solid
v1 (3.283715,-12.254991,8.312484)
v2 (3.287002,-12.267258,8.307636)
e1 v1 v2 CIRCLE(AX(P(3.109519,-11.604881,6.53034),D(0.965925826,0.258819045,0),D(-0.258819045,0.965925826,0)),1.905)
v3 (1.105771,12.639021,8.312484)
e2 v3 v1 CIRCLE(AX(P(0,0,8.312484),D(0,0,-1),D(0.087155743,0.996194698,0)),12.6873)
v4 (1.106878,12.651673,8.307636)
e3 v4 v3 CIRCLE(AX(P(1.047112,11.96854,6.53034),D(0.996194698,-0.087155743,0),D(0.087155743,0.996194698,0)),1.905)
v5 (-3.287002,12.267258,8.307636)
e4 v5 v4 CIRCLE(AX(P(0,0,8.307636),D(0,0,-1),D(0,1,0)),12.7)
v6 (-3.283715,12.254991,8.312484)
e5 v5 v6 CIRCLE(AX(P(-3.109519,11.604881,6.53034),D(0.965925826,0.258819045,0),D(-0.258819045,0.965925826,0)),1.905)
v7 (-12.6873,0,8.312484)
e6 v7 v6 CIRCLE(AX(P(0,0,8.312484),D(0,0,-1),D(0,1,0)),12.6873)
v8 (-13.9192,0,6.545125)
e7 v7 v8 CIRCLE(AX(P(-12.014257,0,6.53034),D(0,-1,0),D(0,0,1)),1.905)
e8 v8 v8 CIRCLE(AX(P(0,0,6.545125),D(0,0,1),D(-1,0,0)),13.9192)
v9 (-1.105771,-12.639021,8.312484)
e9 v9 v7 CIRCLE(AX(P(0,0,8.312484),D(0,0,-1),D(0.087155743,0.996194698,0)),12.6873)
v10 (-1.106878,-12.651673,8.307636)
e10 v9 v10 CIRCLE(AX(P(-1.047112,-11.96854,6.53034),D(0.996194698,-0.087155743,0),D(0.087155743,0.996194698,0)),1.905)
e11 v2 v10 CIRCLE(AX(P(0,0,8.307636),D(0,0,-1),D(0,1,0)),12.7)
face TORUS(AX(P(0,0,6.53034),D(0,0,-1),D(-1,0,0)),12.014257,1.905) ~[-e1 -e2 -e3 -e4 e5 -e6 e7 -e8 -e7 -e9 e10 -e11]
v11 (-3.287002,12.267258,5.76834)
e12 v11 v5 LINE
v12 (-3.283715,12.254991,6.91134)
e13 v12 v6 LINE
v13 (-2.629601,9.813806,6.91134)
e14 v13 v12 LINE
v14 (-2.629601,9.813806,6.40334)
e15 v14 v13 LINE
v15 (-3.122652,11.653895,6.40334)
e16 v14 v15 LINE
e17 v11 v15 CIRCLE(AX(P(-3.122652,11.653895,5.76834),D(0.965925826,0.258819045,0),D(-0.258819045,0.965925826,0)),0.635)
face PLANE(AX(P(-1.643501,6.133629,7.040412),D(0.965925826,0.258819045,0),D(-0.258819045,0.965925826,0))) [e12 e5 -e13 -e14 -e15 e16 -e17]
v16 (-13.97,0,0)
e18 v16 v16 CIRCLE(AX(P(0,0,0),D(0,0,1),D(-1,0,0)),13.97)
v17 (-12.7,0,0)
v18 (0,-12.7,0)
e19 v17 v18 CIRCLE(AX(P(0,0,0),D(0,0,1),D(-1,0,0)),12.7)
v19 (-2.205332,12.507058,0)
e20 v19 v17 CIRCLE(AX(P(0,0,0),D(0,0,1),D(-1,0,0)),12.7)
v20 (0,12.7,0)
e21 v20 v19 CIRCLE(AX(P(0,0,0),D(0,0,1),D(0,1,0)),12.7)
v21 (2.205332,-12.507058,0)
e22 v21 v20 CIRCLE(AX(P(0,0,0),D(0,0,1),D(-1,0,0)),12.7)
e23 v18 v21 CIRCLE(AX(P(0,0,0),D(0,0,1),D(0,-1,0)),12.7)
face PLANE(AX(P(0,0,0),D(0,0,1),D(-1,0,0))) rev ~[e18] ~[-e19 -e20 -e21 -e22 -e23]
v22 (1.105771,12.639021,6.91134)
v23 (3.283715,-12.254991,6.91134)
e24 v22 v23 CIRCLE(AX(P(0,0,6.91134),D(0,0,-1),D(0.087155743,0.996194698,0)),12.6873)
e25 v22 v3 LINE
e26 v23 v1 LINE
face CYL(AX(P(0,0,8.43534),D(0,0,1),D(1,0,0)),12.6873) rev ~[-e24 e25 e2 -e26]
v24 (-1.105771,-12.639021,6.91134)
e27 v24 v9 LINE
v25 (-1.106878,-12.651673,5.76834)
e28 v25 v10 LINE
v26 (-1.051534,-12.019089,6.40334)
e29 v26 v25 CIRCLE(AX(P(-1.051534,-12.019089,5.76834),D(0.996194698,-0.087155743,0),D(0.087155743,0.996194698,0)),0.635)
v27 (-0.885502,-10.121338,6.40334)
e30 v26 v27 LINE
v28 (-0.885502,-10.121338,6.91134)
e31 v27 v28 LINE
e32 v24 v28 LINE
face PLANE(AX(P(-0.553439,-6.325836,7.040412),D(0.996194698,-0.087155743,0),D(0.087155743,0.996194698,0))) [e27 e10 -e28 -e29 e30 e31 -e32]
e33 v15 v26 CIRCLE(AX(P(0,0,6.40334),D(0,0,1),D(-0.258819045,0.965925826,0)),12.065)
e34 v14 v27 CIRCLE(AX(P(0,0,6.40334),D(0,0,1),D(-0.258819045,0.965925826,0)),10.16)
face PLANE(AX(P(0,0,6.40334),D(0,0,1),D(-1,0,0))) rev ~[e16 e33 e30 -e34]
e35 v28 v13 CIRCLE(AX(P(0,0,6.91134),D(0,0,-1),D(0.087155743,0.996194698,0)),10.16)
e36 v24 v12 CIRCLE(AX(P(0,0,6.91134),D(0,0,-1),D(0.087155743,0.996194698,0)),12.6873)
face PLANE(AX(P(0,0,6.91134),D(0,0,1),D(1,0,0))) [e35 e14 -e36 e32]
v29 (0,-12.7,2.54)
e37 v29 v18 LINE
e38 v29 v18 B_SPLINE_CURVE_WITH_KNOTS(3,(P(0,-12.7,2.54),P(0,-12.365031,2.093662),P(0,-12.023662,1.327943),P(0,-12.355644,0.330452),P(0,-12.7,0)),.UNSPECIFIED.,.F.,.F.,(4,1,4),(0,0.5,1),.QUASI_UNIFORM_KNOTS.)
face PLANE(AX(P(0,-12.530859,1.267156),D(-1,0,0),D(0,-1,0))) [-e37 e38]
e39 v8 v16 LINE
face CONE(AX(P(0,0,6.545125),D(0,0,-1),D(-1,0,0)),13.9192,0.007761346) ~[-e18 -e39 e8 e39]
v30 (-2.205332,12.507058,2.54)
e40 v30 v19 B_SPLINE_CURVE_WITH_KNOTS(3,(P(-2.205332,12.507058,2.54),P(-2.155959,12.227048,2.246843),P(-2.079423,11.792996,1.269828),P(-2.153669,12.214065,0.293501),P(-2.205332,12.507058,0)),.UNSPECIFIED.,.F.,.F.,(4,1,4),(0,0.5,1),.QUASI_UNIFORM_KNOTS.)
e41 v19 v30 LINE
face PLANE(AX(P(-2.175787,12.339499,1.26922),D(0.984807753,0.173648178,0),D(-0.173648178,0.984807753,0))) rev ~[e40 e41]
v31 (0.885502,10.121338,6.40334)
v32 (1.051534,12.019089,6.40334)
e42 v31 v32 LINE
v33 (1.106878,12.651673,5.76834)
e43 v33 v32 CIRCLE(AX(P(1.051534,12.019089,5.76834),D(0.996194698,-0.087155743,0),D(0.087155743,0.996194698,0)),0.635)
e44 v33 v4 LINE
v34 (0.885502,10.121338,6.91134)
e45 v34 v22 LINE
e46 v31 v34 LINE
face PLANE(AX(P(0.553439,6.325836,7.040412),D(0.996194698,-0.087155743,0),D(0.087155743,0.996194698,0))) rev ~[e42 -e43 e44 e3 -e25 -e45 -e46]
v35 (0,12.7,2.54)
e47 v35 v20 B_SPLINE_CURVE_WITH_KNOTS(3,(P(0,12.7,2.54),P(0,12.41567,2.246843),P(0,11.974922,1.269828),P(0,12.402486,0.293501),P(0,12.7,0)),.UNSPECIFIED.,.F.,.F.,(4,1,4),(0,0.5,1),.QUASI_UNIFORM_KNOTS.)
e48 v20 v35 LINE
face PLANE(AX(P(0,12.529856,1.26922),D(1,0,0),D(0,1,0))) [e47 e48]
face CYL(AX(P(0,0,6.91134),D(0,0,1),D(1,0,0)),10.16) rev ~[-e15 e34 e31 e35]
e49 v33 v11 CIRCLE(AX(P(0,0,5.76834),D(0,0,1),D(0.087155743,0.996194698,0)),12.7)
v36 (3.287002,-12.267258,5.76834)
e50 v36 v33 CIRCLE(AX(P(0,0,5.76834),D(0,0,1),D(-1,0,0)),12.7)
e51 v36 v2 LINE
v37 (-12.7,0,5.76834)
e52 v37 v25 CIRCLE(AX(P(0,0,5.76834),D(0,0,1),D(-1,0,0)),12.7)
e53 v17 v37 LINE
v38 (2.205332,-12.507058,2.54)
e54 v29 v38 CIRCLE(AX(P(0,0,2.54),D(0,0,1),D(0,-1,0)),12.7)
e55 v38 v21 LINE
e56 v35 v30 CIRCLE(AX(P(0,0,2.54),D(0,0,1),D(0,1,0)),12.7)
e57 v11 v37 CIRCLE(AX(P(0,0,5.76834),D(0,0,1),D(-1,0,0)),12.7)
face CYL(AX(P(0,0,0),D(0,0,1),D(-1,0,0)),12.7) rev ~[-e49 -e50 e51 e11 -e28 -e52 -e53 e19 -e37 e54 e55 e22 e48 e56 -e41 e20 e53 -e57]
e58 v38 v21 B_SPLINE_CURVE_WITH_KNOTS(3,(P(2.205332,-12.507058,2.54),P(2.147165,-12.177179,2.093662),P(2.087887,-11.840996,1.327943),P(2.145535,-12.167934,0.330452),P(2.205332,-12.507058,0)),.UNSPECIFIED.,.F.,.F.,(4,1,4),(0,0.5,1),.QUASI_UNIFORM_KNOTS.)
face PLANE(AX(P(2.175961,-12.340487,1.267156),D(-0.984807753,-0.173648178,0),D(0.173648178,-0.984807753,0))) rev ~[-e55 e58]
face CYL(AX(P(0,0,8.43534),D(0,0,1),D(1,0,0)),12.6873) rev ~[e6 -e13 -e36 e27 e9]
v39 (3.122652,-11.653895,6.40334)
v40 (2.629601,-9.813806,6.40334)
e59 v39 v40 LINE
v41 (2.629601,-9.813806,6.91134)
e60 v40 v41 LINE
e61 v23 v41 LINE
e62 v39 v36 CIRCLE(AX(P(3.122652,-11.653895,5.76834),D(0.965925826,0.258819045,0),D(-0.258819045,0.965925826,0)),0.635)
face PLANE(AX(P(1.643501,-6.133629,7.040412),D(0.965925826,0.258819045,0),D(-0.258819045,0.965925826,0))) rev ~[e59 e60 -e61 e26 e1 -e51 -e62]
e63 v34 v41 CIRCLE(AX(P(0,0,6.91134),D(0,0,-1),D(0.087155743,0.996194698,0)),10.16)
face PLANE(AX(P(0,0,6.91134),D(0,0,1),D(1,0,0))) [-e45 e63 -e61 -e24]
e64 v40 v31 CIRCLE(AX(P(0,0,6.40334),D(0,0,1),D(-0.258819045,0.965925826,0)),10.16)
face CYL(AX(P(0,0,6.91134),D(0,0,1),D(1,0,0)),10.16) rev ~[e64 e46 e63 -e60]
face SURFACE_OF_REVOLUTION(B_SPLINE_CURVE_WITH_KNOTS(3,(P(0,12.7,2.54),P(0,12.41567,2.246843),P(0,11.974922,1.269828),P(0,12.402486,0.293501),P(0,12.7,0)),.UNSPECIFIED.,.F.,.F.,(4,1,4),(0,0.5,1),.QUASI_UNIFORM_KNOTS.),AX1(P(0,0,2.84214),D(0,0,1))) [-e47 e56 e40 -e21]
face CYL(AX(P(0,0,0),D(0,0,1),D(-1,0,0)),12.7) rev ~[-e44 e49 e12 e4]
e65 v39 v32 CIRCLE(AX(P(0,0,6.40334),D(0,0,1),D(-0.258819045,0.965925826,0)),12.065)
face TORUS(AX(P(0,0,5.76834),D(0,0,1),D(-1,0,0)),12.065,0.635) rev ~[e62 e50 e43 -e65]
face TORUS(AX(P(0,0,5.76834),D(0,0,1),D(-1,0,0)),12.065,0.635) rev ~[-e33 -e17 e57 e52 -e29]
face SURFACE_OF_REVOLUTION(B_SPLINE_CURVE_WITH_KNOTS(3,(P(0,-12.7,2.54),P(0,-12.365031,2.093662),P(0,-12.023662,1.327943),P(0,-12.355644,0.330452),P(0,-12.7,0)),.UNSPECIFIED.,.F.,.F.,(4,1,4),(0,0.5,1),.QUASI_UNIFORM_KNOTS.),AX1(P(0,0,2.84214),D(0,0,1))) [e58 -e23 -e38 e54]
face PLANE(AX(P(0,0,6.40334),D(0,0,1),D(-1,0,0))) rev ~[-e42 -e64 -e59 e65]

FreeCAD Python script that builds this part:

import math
import FreeCAD as App
import Part
import Sketcher
Q = App.Units.Quantity

doc = App.newDocument("Part")
body = doc.addObject("PartDesign::Body", "Body")

# Sketch on XZ plane
sketch1 = doc.addObject("Sketcher::SketchObject", "Sketch")
body.addObject(sketch1)
sketch1.AttachmentSupport = (doc.XZ_Plane, [""])
sketch1.MapMode = "FlatFace"
sketch1.addGeometry([
    Part.LineSegment(App.Vector(-14, 0, 0), App.Vector(-12.7, 0, 0)),  # 0
    Part.LineSegment(App.Vector(-12.7, 0, 0), App.Vector(-12.7, 5.8, 0)),  # 1
    Part.ArcOfCircle(Part.Circle(App.Vector(-12.1, 5.8, 0), App.Vector(0, 0, 1), 0.6), math.radians(90), math.radians(180)),  # 2
    Part.LineSegment(App.Vector(-12.1, 6.4, 0), App.Vector(0, 6.4, 0)),  # 3
    Part.LineSegment(App.Vector(0, 6.4, 0), App.Vector(0, 8.4, 0)),  # 4
    Part.LineSegment(App.Vector(0, 8.4, 0), App.Vector(-12, 8.4, 0)),  # 5
    Part.ArcOfCircle(Part.Circle(App.Vector(-12, 6.5, 0), App.Vector(0, 0, 1), 1.9), math.radians(90), math.radians(180)),  # 6
    Part.LineSegment(App.Vector(-13.9, 6.5, 0), App.Vector(-14, 0, 0)),  # 7
], False)
sketch1.addConstraint([
    Sketcher.Constraint("Coincident", 0, 2, 1, 1),
    Sketcher.Constraint("Tangent", 1, 2, 2, 2),
    Sketcher.Constraint("Tangent", 2, 1, 3, 1),
    Sketcher.Constraint("Coincident", 3, 2, 4, 1),
    Sketcher.Constraint("Coincident", 4, 2, 5, 1),
    Sketcher.Constraint("Tangent", 5, 2, 6, 1),
    Sketcher.Constraint("Tangent", 6, 2, 7, 1),
    Sketcher.Constraint("Coincident", 7, 2, 0, 1),
    Sketcher.Constraint("Horizontal", 0),
    Sketcher.Constraint("Vertical", 1),
    Sketcher.Constraint("Horizontal", 3),
    Sketcher.Constraint("Vertical", 4),
    Sketcher.Constraint("Horizontal", 5),
    Sketcher.Constraint("PointOnObject", 0, 2, -1),
    Sketcher.Constraint("PointOnObject", 3, 2, -2),
    Sketcher.Constraint("Radius", 2, Q("0.025 in")),
    Sketcher.Constraint("Radius", 6, Q("0.075 in")),
    Sketcher.Constraint("DistanceX", 0, 1, 0, 2, Q("0.05 in")),
    Sketcher.Constraint("DistanceY", 4, 1, 4, 2, Q("0.08 in")),
    Sketcher.Constraint("DistanceX", 0, 2, -1, 1, Q("0.5 in")),
    Sketcher.Constraint("DistanceY", 1, 1, 1, 2, Q("0.2271 in")),
    Sketcher.Constraint("DistanceX", 6, 2, -1, 1, Q("0.548 in")),
])
revolution = doc.addObject("PartDesign::Revolution", "Revolution")
body.addObject(revolution)
revolution.Profile = sketch1
revolution.ReferenceAxis = (sketch1, ["V_Axis"])
revolution.Angle = 360

# Sketch on XY plane
sketch2 = doc.addObject("Sketcher::SketchObject", "Sketch001")
body.addObject(sketch2)
sketch2.AttachmentSupport = (doc.XY_Plane, [""])
sketch2.MapMode = "FlatFace"
sketch2.AttachmentOffset = App.Placement(App.Vector(0, 0, 0.3321 * 25.4), App.Rotation())
sketch2.addGeometry(Part.Circle(App.Vector(0, 0, 0), App.Vector(0, 0, 1), 13), False)
sketch2.addConstraint([
    Sketcher.Constraint("Coincident", 0, 3, -1, 1),
    Sketcher.Constraint("Diameter", 0, Q("0.999 in")),
])
pocket1 = doc.addObject("PartDesign::Pocket", "Pocket")
body.addObject(pocket1)
pocket1.Profile = sketch2
pocket1.Length = Q("0.06 in")

# Sketch on XY plane
sketch3 = doc.addObject("Sketcher::SketchObject", "Sketch002")
body.addObject(sketch3)
sketch3.AttachmentSupport = (doc.XY_Plane, [""])
sketch3.MapMode = "FlatFace"
sketch3.AttachmentOffset = App.Placement(App.Vector(0, 0, 0.2721 * 25.4), App.Rotation())
sketch3.addGeometry(Part.Circle(App.Vector(0, 0, 0), App.Vector(0, 0, 1), 10), False)
sketch3.addConstraint([
    Sketcher.Constraint("Coincident", 0, 3, -1, 1),
    Sketcher.Constraint("Diameter", 0, Q("0.8 in")),
])
pocket2 = doc.addObject("PartDesign::Pocket", "Pocket001")
body.addObject(pocket2)
pocket2.Profile = sketch3
pocket2.Length = Q("1 in")

# Sketch on YZ plane
sketch4 = doc.addObject("Sketcher::SketchObject", "Sketch003")
body.addObject(sketch4)
sketch4.AttachmentSupport = (doc.YZ_Plane, [""])
sketch4.MapMode = "FlatFace"
sketch4.addGeometry([
    Part.BSplineCurve([App.Vector(-12.7, 2.54, 0), App.Vector(-12.365031, 2.093662, 0), App.Vector(-12.023662, 1.327943, 0), App.Vector(-12.355644, 0.330452, 0), App.Vector(-12.7, 0, 0)], [4, 1, 4], [0, 0.5, 1], False, 3, [1, 1, 1, 1, 1], False),
    Part.LineSegment(App.Vector(-12.7, 2.54, 0), App.Vector(-12.7, 0, 0)),
    Part.LineSegment(App.Vector(12.7, 0, 0), App.Vector(12.7, 2.54, 0)),
    Part.BSplineCurve([App.Vector(12.7, 2.54, 0), App.Vector(12.41567, 2.246843, 0), App.Vector(11.974922, 1.269828, 0), App.Vector(12.402486, 0.293501, 0), App.Vector(12.7, 0, 0)], [4, 1, 4], [0, 0.5, 1], False, 3, [1, 1, 1, 1, 1], False),
], False)
sketch4.addConstraint([
    Sketcher.Constraint("Block", 0),
    Sketcher.Constraint("Block", 3),
    Sketcher.Constraint("Coincident", 0, 1, 1, 1),
    Sketcher.Constraint("Coincident", 1, 2, 0, 2),
    Sketcher.Constraint("Coincident", 2, 1, 3, 2),
    Sketcher.Constraint("Coincident", 3, 1, 2, 2),
])
revolution2 = doc.addObject("PartDesign::Revolution", "Revolution001")
body.addObject(revolution2)
revolution2.Profile = sketch4
revolution2.ReferenceAxis = (sketch4, ["V_Axis"])
revolution2.Angle = 10

# Sketch on an angled plane
sketch5 = doc.addObject("Sketcher::SketchObject", "Sketch004")
body.addObject(sketch5)
sketch5.Placement = App.Placement(App.Vector(0, 0, 0), App.Rotation(App.Vector(0.087155743, 0.996194698, 0), App.Vector(0, 0, 1), App.Vector(0.996194698, -0.087155743, 0), "ZXY"))
sketch5.addGeometry([
    Part.LineSegment(App.Vector(0, 8.3, 0), App.Vector(0, 5.8, 0)),
    Part.LineSegment(App.Vector(0, 5.8, 0), App.Vector(12.7, 5.8, 0)),
    Part.LineSegment(App.Vector(12.7, 5.8, 0), App.Vector(12.7, 8.3, 0)),
    Part.LineSegment(App.Vector(12.7, 8.3, 0), App.Vector(0, 8.3, 0)),
], False)
sketch5.addConstraint([
    Sketcher.Constraint("Coincident", 0, 2, 1, 1),
    Sketcher.Constraint("Coincident", 1, 2, 2, 1),
    Sketcher.Constraint("Coincident", 2, 2, 3, 1),
    Sketcher.Constraint("Coincident", 3, 2, 0, 1),
    Sketcher.Constraint("Vertical", 0),
    Sketcher.Constraint("Horizontal", 1),
    Sketcher.Constraint("Vertical", 2),
    Sketcher.Constraint("Horizontal", 3),
    Sketcher.Constraint("PointOnObject", 0, 2, -2),
    Sketcher.Constraint("DistanceX", 1, 1, 1, 2, Q("0.5 in")),
    Sketcher.Constraint("DistanceY", -1, 1, 0, 2, Q("0.2271 in")),
    Sketcher.Constraint("DistanceY", 0, 2, 0, 1, Q("2.544144 mm")),
])
groove = doc.addObject("PartDesign::Groove", "Groove")
body.addObject(groove)
groove.Profile = sketch5
groove.ReferenceAxis = (sketch5, ["V_Axis"])
groove.Angle = 20

# Sketch on an angled plane
sketch6 = doc.addObject("Sketcher::SketchObject", "Sketch005")
body.addObject(sketch6)
sketch6.Placement = App.Placement(App.Vector(0, 0, 0), App.Rotation(App.Vector(0.087155743, 0.996194698, 0), App.Vector(0, 0, 1), App.Vector(0.996194698, -0.087155743, 0), "ZXY"))
sketch6.addGeometry([
    Part.LineSegment(App.Vector(-12.7, 8.3, 0), App.Vector(-12.7, 5.8, 0)),
    Part.LineSegment(App.Vector(-12.7, 5.8, 0), App.Vector(0, 5.8, 0)),
    Part.LineSegment(App.Vector(0, 5.8, 0), App.Vector(0, 8.3, 0)),
    Part.LineSegment(App.Vector(0, 8.3, 0), App.Vector(-12.7, 8.3, 0)),
], False)
sketch6.addConstraint([
    Sketcher.Constraint("Coincident", 0, 2, 1, 1),
    Sketcher.Constraint("Coincident", 1, 2, 2, 1),
    Sketcher.Constraint("Coincident", 2, 2, 3, 1),
    Sketcher.Constraint("Coincident", 3, 2, 0, 1),
    Sketcher.Constraint("Vertical", 0),
    Sketcher.Constraint("Horizontal", 1),
    Sketcher.Constraint("Vertical", 2),
    Sketcher.Constraint("Horizontal", 3),
    Sketcher.Constraint("PointOnObject", 1, 2, -2),
    Sketcher.Constraint("DistanceX", 1, 1, 1, 2, Q("0.5 in")),
    Sketcher.Constraint("DistanceY", -1, 1, 0, 2, Q("0.2271 in")),
    Sketcher.Constraint("DistanceY", 0, 2, 0, 1, Q("2.544144 mm")),
])
groove2 = doc.addObject("PartDesign::Groove", "Groove001")
body.addObject(groove2)
groove2.Profile = sketch6
groove2.ReferenceAxis = (sketch6, ["V_Axis"])
groove2.Angle = 20

doc.recompute()
